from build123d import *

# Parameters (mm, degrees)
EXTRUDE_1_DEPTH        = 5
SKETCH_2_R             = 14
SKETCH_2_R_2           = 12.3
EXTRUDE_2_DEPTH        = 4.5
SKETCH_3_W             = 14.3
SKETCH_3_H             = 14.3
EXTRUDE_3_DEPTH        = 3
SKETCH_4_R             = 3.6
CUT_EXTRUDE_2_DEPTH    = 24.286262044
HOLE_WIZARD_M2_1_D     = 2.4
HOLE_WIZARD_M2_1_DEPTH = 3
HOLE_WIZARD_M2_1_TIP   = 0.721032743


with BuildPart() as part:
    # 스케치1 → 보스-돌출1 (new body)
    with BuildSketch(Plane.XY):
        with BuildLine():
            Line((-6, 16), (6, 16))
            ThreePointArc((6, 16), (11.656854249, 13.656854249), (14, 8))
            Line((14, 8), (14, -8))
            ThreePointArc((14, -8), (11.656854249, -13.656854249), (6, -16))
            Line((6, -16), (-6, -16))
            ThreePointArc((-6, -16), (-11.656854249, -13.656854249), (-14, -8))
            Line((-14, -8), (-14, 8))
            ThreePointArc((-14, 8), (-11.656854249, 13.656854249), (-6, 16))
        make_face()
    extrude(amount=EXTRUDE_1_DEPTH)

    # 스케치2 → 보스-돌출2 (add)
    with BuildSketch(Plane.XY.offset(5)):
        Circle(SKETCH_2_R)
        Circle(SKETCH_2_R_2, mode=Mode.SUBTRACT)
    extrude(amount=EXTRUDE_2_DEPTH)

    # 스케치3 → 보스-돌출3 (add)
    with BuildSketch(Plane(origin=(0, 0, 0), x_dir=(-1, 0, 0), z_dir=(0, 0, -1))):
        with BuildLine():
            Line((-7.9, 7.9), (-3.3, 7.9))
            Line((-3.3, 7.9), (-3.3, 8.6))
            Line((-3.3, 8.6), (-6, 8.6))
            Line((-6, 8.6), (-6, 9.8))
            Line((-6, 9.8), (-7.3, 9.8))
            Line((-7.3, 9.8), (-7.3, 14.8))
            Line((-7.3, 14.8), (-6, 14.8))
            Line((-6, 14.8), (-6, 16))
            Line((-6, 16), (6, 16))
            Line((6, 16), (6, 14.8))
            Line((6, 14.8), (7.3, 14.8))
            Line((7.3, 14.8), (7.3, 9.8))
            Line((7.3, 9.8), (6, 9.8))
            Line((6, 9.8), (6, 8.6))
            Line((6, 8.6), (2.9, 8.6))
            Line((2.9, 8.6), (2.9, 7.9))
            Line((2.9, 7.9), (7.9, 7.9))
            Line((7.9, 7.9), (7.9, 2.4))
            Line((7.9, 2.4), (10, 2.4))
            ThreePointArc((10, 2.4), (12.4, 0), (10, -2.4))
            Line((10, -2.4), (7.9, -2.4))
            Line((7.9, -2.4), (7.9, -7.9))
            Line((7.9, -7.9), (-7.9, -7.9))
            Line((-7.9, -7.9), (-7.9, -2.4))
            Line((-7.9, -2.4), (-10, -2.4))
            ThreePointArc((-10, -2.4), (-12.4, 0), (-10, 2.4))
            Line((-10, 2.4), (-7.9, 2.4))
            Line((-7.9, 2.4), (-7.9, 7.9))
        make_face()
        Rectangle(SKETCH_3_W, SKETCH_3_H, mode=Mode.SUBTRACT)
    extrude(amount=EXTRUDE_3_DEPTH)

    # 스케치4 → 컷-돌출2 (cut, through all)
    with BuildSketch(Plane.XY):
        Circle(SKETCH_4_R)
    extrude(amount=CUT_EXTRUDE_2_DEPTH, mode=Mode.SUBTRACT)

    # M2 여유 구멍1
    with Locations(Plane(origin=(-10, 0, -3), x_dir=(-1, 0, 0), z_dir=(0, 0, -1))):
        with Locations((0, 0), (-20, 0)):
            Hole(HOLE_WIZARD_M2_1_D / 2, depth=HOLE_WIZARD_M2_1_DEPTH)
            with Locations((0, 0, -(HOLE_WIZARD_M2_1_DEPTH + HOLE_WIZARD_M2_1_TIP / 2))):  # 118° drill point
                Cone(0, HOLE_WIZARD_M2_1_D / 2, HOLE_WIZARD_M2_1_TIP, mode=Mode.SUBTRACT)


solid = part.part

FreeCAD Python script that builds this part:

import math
import FreeCAD as App
import Part
import Sketcher
Q = App.Units.Quantity


def add_polygon(sketch, points):
    """Adds a closed chain of lines whose ends are joined by coincident constraints."""
    first, n = sketch.GeometryCount, len(points)
    for a, b in zip(points, points[1:] + points[:1]):
        sketch.addGeometry(Part.LineSegment(App.Vector(*a, 0), App.Vector(*b, 0)), False)
    for i in range(n):
        sketch.addConstraint(Sketcher.Constraint("Coincident", first + i, 2, first + (i + 1) % n, 1))

doc = App.newDocument("Part")
body = doc.addObject("PartDesign::Body", "Body")

sketch1 = doc.addObject("Sketcher::SketchObject", "Sketch")
body.addObject(sketch1)
sketch1.AttachmentSupport = (doc.XY_Plane, [""])
sketch1.MapMode = "FlatFace"
sketch1.addGeometry(Part.LineSegment(App.Vector(6, 16, 0), App.Vector(-6, 16, 0)), False)
sketch1.addGeometry(Part.ArcOfCircle(Part.Circle(App.Vector(-6, 8, 0), App.Vector(0, 0, 1), 8), math.radians(90), math.radians(180)), False)
sketch1.addGeometry(Part.LineSegment(App.Vector(-14, 8, 0), App.Vector(-14, -8, 0)), False)
sketch1.addGeometry(Part.ArcOfCircle(Part.Circle(App.Vector(-6, -8, 0), App.Vector(0, 0, 1), 8), math.radians(-180), math.radians(-90)), False)
sketch1.addGeometry(Part.LineSegment(App.Vector(-6, -16, 0), App.Vector(6, -16, 0)), False)
sketch1.addGeometry(Part.ArcOfCircle(Part.Circle(App.Vector(6, -8, 0), App.Vector(0, 0, 1), 8), math.radians(-90), math.radians(0)), False)
sketch1.addGeometry(Part.LineSegment(App.Vector(14, -8, 0), App.Vector(14, 8, 0)), False)
sketch1.addGeometry(Part.ArcOfCircle(Part.Circle(App.Vector(6, 8, 0), App.Vector(0, 0, 1), 8), math.radians(0), math.radians(90)), False)
sketch1.addConstraint(Sketcher.Constraint("Tangent", 0, 2, 1, 1))
sketch1.addConstraint(Sketcher.Constraint("Tangent", 1, 2, 2, 1))
sketch1.addConstraint(Sketcher.Constraint("Tangent", 2, 2, 3, 1))
sketch1.addConstraint(Sketcher.Constraint("Tangent", 3, 2, 4, 1))
sketch1.addConstraint(Sketcher.Constraint("Tangent", 4, 2, 5, 1))
sketch1.addConstraint(Sketcher.Constraint("Tangent", 5, 2, 6, 1))
sketch1.addConstraint(Sketcher.Constraint("Tangent", 6, 2, 7, 1))
sketch1.addConstraint(Sketcher.Constraint("Tangent", 7, 2, 0, 1))
sketch1.addConstraint(Sketcher.Constraint("Horizontal", 0))
sketch1.addConstraint(Sketcher.Constraint("Vertical", 2))
sketch1.addConstraint(Sketcher.Constraint("Horizontal", 4))
sketch1.addConstraint(Sketcher.Constraint("Vertical", 6))
sketch1.addConstraint(Sketcher.Constraint("Equal", 1, 3))
sketch1.addConstraint(Sketcher.Constraint("Equal", 3, 5))
sketch1.addConstraint(Sketcher.Constraint("Equal", 5, 7))
sketch1.addConstraint(Sketcher.Constraint("Symmetric", 1, 3, 5, 3, -1, 1))
sketch1.addConstraint(Sketcher.Constraint("Radius", 1, Q("8 mm")))
sketch1.addConstraint(Sketcher.Constraint("DistanceX", 0, 2, 0, 1, Q("12 mm")))
sketch1.addConstraint(Sketcher.Constraint("DistanceY", 2, 2, 2, 1, Q("16 mm")))
pad1 = doc.addObject("PartDesign::Pad", "Pad")
body.addObject(pad1)
pad1.Profile = sketch1
pad1.Length = 5

sketch2 = doc.addObject("Sketcher::SketchObject", "Sketch001")
body.addObject(sketch2)
sketch2.AttachmentSupport = (doc.XY_Plane, [""])
sketch2.MapMode = "FlatFace"
sketch2.AttachmentOffset = App.Placement(App.Vector(0, 0, 5), App.Rotation())
sketch2.addGeometry(Part.Circle(App.Vector(0, 0, 0), App.Vector(0, 0, 1), 14), False)
sketch2.addGeometry(Part.Circle(App.Vector(0, 0, 0), App.Vector(0, 0, 1), 12), False)
sketch2.addConstraint(Sketcher.Constraint("Coincident", 0, 3, -1, 1))
sketch2.addConstraint(Sketcher.Constraint("Coincident", 1, 3, -1, 1))
sketch2.addConstraint(Sketcher.Constraint("Diameter", 0, Q("28 mm")))
sketch2.addConstraint(Sketcher.Constraint("Diameter", 1, Q("24.6 mm")))
pad2 = doc.addObject("PartDesign::Pad", "Pad001")
body.addObject(pad2)
pad2.Profile = sketch2
pad2.Length = 4.5

sketch3 = doc.addObject("Sketcher::SketchObject", "Sketch002")
body.addObject(sketch3)
sketch3.AttachmentSupport = (doc.XY_Plane, [""])
sketch3.MapMode = "FlatFace"
sketch3.addGeometry(Part.LineSegment(App.Vector(3.3, 7.9, 0), App.Vector(7.9, 7.9, 0)), False)
sketch3.addGeometry(Part.LineSegment(App.Vector(7.9, 7.9, 0), App.Vector(7.9, 2.4, 0)), False)
sketch3.addGeometry(Part.LineSegment(App.Vector(7.9, 2.4, 0), App.Vector(10, 2.4, 0)), False)
sketch3.addGeometry(Part.ArcOfCircle(Part.Circle(App.Vector(10, 0, 0), App.Vector(0, 0, 1), 2.4), math.radians(-90), math.radians(90)), False)
sketch3.addGeometry(Part.LineSegment(App.Vector(10, -2.4, 0), App.Vector(7.9, -2.4, 0)), False)
sketch3.addGeometry(Part.LineSegment(App.Vector(7.9, -2.4, 0), App.Vector(7.9, -7.9, 0)), False)
sketch3.addGeometry(Part.LineSegment(App.Vector(7.9, -7.9, 0), App.Vector(-7.9, -7.9, 0)), False)
sketch3.addGeometry(Part.LineSegment(App.Vector(-7.9, -7.9, 0), App.Vector(-7.9, -2.4, 0)), False)
sketch3.addGeometry(Part.LineSegment(App.Vector(-7.9, -2.4, 0), App.Vector(-10, -2.4, 0)), False)
sketch3.addGeometry(Part.ArcOfCircle(Part.Circle(App.Vector(-10, 0, 0), App.Vector(0, 0, 1), 2.4), math.radians(90), math.radians(270)), False)
sketch3.addGeometry(Part.LineSegment(App.Vector(-10, 2.4, 0), App.Vector(-7.9, 2.4, 0)), False)
sketch3.addGeometry(Part.LineSegment(App.Vector(-7.9, 2.4, 0), App.Vector(-7.9, 7.9, 0)), False)
sketch3.addGeometry(Part.LineSegment(App.Vector(-7.9, 7.9, 0), App.Vector(-2.9, 7.9, 0)), False)
sketch3.addGeometry(Part.LineSegment(App.Vector(-2.9, 7.9, 0), App.Vector(-2.9, 8.6, 0)), False)
sketch3.addGeometry(Part.LineSegment(App.Vector(-2.9, 8.6, 0), App.Vector(-6, 8.6, 0)), False)
sketch3.addGeometry(Part.LineSegment(App.Vector(-6, 8.6, 0), App.Vector(-6, 9.8, 0)), False)
sketch3.addGeometry(Part.LineSegment(App.Vector(-6, 9.8, 0), App.Vector(-7.3, 9.8, 0)), False)
sketch3.addGeometry(Part.LineSegment(App.Vector(-7.3, 9.8, 0), App.Vector(-7.3, 14.8, 0)), False)
sketch3.addGeometry(Part.LineSegment(App.Vector(-7.3, 14.8, 0), App.Vector(-6, 14.8, 0)), False)
sketch3.addGeometry(Part.LineSegment(App.Vector(-6, 14.8, 0), App.Vector(-6, 16, 0)), False)
sketch3.addGeometry(Part.LineSegment(App.Vector(-6, 16, 0), App.Vector(6, 16, 0)), False)
sketch3.addGeometry(Part.LineSegment(App.Vector(6, 16, 0), App.Vector(6, 14.8, 0)), False)
sketch3.addGeometry(Part.LineSegment(App.Vector(6, 14.8, 0), App.Vector(7.3, 14.8, 0)), False)
sketch3.addGeometry(Part.LineSegment(App.Vector(7.3, 14.8, 0), App.Vector(7.3, 9.8, 0)), False)
sketch3.addGeometry(Part.LineSegment(App.Vector(7.3, 9.8, 0), App.Vector(6, 9.8, 0)), False)
sketch3.addGeometry(Part.LineSegment(App.Vector(6, 9.8, 0), App.Vector(6, 8.6, 0)), False)
sketch3.addGeometry(Part.LineSegment(App.Vector(6, 8.6, 0), App.Vector(3.3, 8.6, 0)), False)
sketch3.addGeometry(Part.LineSegment(App.Vector(3.3, 8.6, 0), App.Vector(3.3, 7.9, 0)), False)
add_polygon(sketch3, [(7.2, -7.2), (7.2, 7.2), (-7.2, 7.2), (-7.2, -7.2)])
sketch3.addConstraint(Sketcher.Constraint("Coincident", 0, 2, 1, 1))
sketch3.addConstraint(Sketcher.Constraint("Coincident", 1, 2, 2, 1))
sketch3.addConstraint(Sketcher.Constraint("Tangent", 2, 2, 3, 2))
sketch3.addConstraint(Sketcher.Constraint("Tangent", 3, 1, 4, 1))
sketch3.addConstraint(Sketcher.Constraint("Coincident", 4, 2, 5, 1))
sketch3.addConstraint(Sketcher.Constraint("Coincident", 5, 2, 6, 1))
sketch3.addConstraint(Sketcher.Constraint("Coincident", 6, 2, 7, 1))
sketch3.addConstraint(Sketcher.Constraint("Coincident", 7, 2, 8, 1))
sketch3.addConstraint(Sketcher.Constraint("Tangent", 8, 2, 9, 2))
sketch3.addConstraint(Sketcher.Constraint("Tangent", 9, 1, 10, 1))
sketch3.addConstraint(Sketcher.Constraint("Coincident", 10, 2, 11, 1))
sketch3.addConstraint(Sketcher.Constraint("Coincident", 11, 2, 12, 1))
sketch3.addConstraint(Sketcher.Constraint("Coincident", 12, 2, 13, 1))
sketch3.addConstraint(Sketcher.Constraint("Coincident", 13, 2, 14, 1))
sketch3.addConstraint(Sketcher.Constraint("Coincident", 14, 2, 15, 1))
sketch3.addConstraint(Sketcher.Constraint("Coincident", 15, 2, 16, 1))
sketch3.addConstraint(Sketcher.Constraint("Coincident", 16, 2, 17, 1))
sketch3.addConstraint(Sketcher.Constraint("Coincident", 17, 2, 18, 1))
sketch3.addConstraint(Sketcher.Constraint("Coincident", 18, 2, 19, 1))
sketch3.addConstraint(Sketcher.Constraint("Coincident", 19, 2, 20, 1))
sketch3.addConstraint(Sketcher.Constraint("Coincident", 20, 2, 21, 1))
sketch3.addConstraint(Sketcher.Constraint("Coincident", 21, 2, 22, 1))
sketch3.addConstraint(Sketcher.Constraint("Coincident", 22, 2, 23, 1))
sketch3.addConstraint(Sketcher.Constraint("Coincident", 23, 2, 24, 1))
sketch3.addConstraint(Sketcher.Constraint("Coincident", 24, 2, 25, 1))
sketch3.addConstraint(Sketcher.Constraint("Coincident", 25, 2, 26, 1))
sketch3.addConstraint(Sketcher.Constraint("Coincident", 26, 2, 27, 1))
sketch3.addConstraint(Sketcher.Constraint("Coincident", 27, 2, 0, 1))
sketch3.addConstraint(Sketcher.Constraint("Horizontal", 0))
sketch3.addConstraint(Sketcher.Constraint("Vertical", 1))
sketch3.addConstraint(Sketcher.Constraint("Horizontal", 2))
sketch3.addConstraint(Sketcher.Constraint("Horizontal", 4))
sketch3.addConstraint(Sketcher.Constraint("Vertical", 5))
sketch3.addConstraint(Sketcher.Constraint("Horizontal", 6))
sketch3.addConstraint(Sketcher.Constraint("Vertical", 7))
sketch3.addConstraint(Sketcher.Constraint("Horizontal", 8))
sketch3.addConstraint(Sketcher.Constraint("Horizontal", 10))
sketch3.addConstraint(Sketcher.Constraint("Vertical", 11))
sketch3.addConstraint(Sketcher.Constraint("Horizontal", 12))
sketch3.addConstraint(Sketcher.Constraint("Vertical", 13))
sketch3.addConstraint(Sketcher.Constraint("Horizontal", 14))
sketch3.addConstraint(Sketcher.Constraint("Vertical", 15))
sketch3.addConstraint(Sketcher.Constraint("Horizontal", 16))
sketch3.addConstraint(Sketcher.Constraint("Vertical", 17))
sketch3.addConstraint(Sketcher.Constraint("Horizontal", 18))
sketch3.addConstraint(Sketcher.Constraint("Vertical", 19))
sketch3.addConstraint(Sketcher.Constraint("Horizontal", 20))
sketch3.addConstraint(Sketcher.Constraint("Vertical", 21))
sketch3.addConstraint(Sketcher.Constraint("Horizontal", 22))
sketch3.addConstraint(Sketcher.Constraint("Vertical", 23))
sketch3.addConstraint(Sketcher.Constraint("Horizontal", 24))
sketch3.addConstraint(Sketcher.Constraint("Vertical", 25))
sketch3.addConstraint(Sketcher.Constraint("Horizontal", 26))
sketch3.addConstraint(Sketcher.Constraint("Vertical", 27))
sketch3.addConstraint(Sketcher.Constraint("Vertical", 28))
sketch3.addConstraint(Sketcher.Constraint("Horizontal", 29))
sketch3.addConstraint(Sketcher.Constraint("Vertical", 30))
sketch3.addConstraint(Sketcher.Constraint("Horizontal", 31))
sketch3.addConstraint(Sketcher.Constraint("Equal", 3, 9))
sketch3.addConstraint(Sketcher.Constraint("Symmetric", 3, 3, 9, 3, -1, 1))
sketch3.addConstraint(Sketcher.Constraint("Symmetric", 0, 2, 6, 2, -1, 1))
sketch3.addConstraint(Sketcher.Constraint("Symmetric", 5, 2, 11, 2, -1, 1))
sketch3.addConstraint(Sketcher.Constraint("Symmetric", 28, 2, 30, 2, -1, 1))
sketch3.addConstraint(Sketcher.Constraint("Symmetric", 4, 2, 7, 2, -2))
sketch3.addConstraint(Sketcher.Constraint("Symmetric", 18, 2, 21, 2, -2))
sketch3.addConstraint(Sketcher.Constraint("Symmetric", 16, 2, 23, 2, -2))
sketch3.addConstraint(Sketcher.Constraint("Symmetric", 14, 2, 25, 2, -2))
sketch3.addConstraint(Sketcher.Constraint("Vertical", 15, 2, 18, 2))
sketch3.addConstraint(Sketcher.Constraint("Equal", 12, 17))
sketch3.addConstraint(Sketcher.Constraint("Equal", 15, 19))
sketch3.addConstraint(Sketcher.Constraint("Equal", 31, 28))
sketch3.addConstraint(Sketcher.Constraint("Radius", 3, Q("2.4 mm")))
sketch3.addConstraint(Sketcher.Constraint("DistanceX", 12, 1, 12, 2, Q("5 mm")))
sketch3.addConstraint(Sketcher.Constraint("DistanceX", 20, 1, 20, 2, Q("12 mm")))
sketch3.addConstraint(Sketcher.Constraint("DistanceX", 0, 1, 0, 2, Q("4.6 mm")))
sketch3.addConstraint(Sketcher.Constraint("DistanceX", 2, 1, 2, 2, Q("2.1 mm")))
sketch3.addConstraint(Sketcher.Constraint("DistanceX", 6, 2, 6, 1, Q("15.8 mm")))
sketch3.addConstraint(Sketcher.Constraint("DistanceX", 16, 2, 16, 1, Q("1.3 mm")))
sketch3.addConstraint(Sketcher.Constraint("DistanceX", 29, 2, 29, 1, Q("14.3 mm")))
sketch3.addConstraint(Sketcher.Constraint("DistanceY", 1, 2, 1, 1, Q("5.5 mm")))
sketch3.addConstraint(Sketcher.Constraint("DistanceY", 13, 1, 13, 2, Q("0.7 mm")))
sketch3.addConstraint(Sketcher.Constraint("DistanceY", 15, 1, 15, 2, Q("1.2 mm")))
pad3 = doc.addObject("PartDesign::Pad", "Pad002")
body.addObject(pad3)
pad3.Profile = sketch3
pad3.Length = 3
pad3.Reversed = True

sketch4 = doc.addObject("Sketcher::SketchObject", "Sketch003")
body.addObject(sketch4)
sketch4.AttachmentSupport = (doc.XY_Plane, [""])
sketch4.MapMode = "FlatFace"
sketch4.addGeometry(Part.Circle(App.Vector(0, 0, 0), App.Vector(0, 0, 1), 3.6), False)
sketch4.addConstraint(Sketcher.Constraint("Coincident", 0, 3, -1, 1))
sketch4.addConstraint(Sketcher.Constraint("Diameter", 0, Q("7.2 mm")))
pocket1 = doc.addObject("PartDesign::Pocket", "Pocket")
body.addObject(pocket1)
pocket1.Profile = sketch4
pocket1.Type = "ThroughAll"
pocket1.Reversed = True

sketch5 = doc.addObject("Sketcher::SketchObject", "Sketch004")
body.addObject(sketch5)
sketch5.AttachmentSupport = (doc.XY_Plane, [""])
sketch5.MapMode = "FlatFace"
sketch5.AttachmentOffset = App.Placement(App.Vector(0, 0, -3), App.Rotation())
sketch5.addGeometry(Part.Circle(App.Vector(-10, 0, 0), App.Vector(0, 0, 1), 1.2), False)
sketch5.addGeometry(Part.Circle(App.Vector(10, 0, 0), App.Vector(0, 0, 1), 1.2), False)
sketch5.addConstraint(Sketcher.Constraint("Equal", 0, 1))
sketch5.addConstraint(Sketcher.Constraint("Symmetric", 0, 3, 1, 3, -1, 1))
sketch5.addConstraint(Sketcher.Constraint("PointOnObject", 0, 3, -1))
sketch5.addConstraint(Sketcher.Constraint("Diameter", 0, Q("2.4 mm")))
sketch5.addConstraint(Sketcher.Constraint("DistanceX", 0, 3, -1, 1, Q("10 mm")))
doc.recompute()
hole = doc.addObject("PartDesign::Hole", "Hole")
body.addObject(hole)
hole.Profile = sketch5
hole.ThreadType = "None"
hole.Diameter = 2.4
hole.DepthType = "Dimension"
hole.Depth = 3
hole.DrillPoint = "Angled"
hole.DrillPointAngle = 118
hole.Reversed = True

doc.recompute()
